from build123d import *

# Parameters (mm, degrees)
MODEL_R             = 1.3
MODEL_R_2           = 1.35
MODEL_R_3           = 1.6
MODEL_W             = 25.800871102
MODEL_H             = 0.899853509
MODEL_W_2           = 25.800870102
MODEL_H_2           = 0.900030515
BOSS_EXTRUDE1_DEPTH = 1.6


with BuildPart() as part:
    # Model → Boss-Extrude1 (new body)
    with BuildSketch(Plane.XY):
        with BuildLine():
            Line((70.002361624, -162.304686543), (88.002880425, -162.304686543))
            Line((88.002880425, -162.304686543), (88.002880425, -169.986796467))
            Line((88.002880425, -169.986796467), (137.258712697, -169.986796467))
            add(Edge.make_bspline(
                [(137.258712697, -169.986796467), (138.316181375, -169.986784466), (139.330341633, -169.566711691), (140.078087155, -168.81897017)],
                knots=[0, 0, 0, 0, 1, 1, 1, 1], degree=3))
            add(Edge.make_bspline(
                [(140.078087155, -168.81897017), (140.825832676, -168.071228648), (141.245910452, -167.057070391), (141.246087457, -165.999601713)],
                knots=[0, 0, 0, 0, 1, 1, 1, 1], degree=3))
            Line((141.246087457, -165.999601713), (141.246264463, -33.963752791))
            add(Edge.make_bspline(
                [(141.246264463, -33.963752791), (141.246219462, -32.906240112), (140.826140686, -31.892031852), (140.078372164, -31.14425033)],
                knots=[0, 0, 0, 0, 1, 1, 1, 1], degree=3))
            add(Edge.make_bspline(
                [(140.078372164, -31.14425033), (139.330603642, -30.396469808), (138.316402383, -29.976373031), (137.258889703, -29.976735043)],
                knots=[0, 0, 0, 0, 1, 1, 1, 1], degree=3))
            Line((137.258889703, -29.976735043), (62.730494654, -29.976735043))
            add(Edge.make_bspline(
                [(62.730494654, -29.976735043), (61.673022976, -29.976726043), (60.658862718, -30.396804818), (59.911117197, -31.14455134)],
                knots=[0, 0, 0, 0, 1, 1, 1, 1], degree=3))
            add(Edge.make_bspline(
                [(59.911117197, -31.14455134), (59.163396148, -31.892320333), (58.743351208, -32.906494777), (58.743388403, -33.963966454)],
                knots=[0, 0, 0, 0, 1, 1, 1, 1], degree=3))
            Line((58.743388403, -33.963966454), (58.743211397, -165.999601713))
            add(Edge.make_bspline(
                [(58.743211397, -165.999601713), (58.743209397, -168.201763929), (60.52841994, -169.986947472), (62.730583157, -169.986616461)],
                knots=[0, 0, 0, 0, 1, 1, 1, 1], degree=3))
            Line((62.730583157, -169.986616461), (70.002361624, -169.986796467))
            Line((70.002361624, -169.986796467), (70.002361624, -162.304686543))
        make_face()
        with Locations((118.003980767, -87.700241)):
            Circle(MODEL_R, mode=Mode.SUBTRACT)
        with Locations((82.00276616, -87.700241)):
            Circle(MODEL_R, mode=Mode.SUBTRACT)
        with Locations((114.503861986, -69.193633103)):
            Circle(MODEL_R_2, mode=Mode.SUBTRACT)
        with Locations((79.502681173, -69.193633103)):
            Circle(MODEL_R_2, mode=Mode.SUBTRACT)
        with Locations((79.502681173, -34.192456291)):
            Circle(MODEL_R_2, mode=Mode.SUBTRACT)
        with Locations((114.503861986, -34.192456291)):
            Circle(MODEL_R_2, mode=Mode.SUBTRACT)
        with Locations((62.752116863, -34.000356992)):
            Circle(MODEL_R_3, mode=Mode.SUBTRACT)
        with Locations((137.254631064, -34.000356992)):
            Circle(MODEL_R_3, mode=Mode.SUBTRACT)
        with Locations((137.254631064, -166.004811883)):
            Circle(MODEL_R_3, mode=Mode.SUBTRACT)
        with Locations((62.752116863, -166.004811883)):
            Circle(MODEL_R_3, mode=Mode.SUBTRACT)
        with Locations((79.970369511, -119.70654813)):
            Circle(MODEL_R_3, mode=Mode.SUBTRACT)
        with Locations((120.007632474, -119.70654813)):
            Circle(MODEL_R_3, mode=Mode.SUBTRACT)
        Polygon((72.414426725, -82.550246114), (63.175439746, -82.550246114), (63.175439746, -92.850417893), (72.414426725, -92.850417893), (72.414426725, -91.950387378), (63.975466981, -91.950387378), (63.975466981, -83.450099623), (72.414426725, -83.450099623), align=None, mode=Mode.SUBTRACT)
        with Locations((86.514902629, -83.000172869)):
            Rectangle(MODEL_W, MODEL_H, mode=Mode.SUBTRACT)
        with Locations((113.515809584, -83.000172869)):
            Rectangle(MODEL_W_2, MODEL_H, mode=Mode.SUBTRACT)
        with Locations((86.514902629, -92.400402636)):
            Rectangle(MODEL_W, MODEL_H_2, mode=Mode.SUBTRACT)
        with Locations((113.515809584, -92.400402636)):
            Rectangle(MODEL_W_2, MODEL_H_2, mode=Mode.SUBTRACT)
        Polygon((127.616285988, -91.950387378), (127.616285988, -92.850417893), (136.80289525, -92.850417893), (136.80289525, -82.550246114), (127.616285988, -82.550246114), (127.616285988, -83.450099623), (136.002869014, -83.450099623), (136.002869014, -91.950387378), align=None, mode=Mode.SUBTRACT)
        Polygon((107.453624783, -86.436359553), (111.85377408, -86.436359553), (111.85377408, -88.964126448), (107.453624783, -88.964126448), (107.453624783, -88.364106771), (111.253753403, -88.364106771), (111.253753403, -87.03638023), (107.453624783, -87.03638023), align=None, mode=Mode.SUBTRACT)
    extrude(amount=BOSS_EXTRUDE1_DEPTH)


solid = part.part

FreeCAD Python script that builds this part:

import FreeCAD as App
import Part
import Sketcher

doc = App.newDocument("Part")
body = doc.addObject("PartDesign::Body", "Body")

sketch1 = body.newObject("Sketcher::SketchObject", "Sketch")
sketch1.AttachmentSupport = (doc.getObject("XY_Plane"), [""])
sketch1.MapMode = "FlatFace"
sketch1.addGeometry([
    Part.LineSegment(App.Vector(70.002362, -162.304687, 0), App.Vector(88.00288, -162.304687, 0)),
    Part.LineSegment(App.Vector(88.00288, -162.304687, 0), App.Vector(88.00288, -169.986796, 0)),
    Part.LineSegment(App.Vector(88.00288, -169.986796, 0), App.Vector(137.258713, -169.986796, 0)),
    Part.BSplineCurve([App.Vector(137.258713, -169.986796, 0), App.Vector(138.316181, -169.986784, 0), App.Vector(139.330342, -169.566712, 0), App.Vector(140.078087, -168.81897, 0)], [4, 4], [0, 1], False, 3, [1, 1, 1, 1], False),
    Part.BSplineCurve([App.Vector(140.078087, -168.81897, 0), App.Vector(140.825833, -168.071229, 0), App.Vector(141.24591, -167.05707, 0), App.Vector(141.246087, -165.999602, 0)], [4, 4], [0, 1], False, 3, [1, 1, 1, 1], False),
    Part.LineSegment(App.Vector(141.246087, -165.999602, 0), App.Vector(141.246264, -33.963753, 0)),
    Part.BSplineCurve([App.Vector(141.246264, -33.963753, 0), App.Vector(141.246219, -32.90624, 0), App.Vector(140.826141, -31.892032, 0), App.Vector(140.078372, -31.14425, 0)], [4, 4], [0, 1], False, 3, [1, 1, 1, 1], False),
    Part.BSplineCurve([App.Vector(140.078372, -31.14425, 0), App.Vector(139.330604, -30.39647, 0), App.Vector(138.316402, -29.976373, 0), App.Vector(137.25889, -29.976735, 0)], [4, 4], [0, 1], False, 3, [1, 1, 1, 1], False),
    Part.LineSegment(App.Vector(137.25889, -29.976735, 0), App.Vector(62.730495, -29.976735, 0)),
    Part.BSplineCurve([App.Vector(62.730495, -29.976735, 0), App.Vector(61.673023, -29.976726, 0), App.Vector(60.658863, -30.396805, 0), App.Vector(59.911117, -31.144551, 0)], [4, 4], [0, 1], False, 3, [1, 1, 1, 1], False),
    Part.BSplineCurve([App.Vector(59.911117, -31.144551, 0), App.Vector(59.163396, -31.89232, 0), App.Vector(58.743351, -32.906495, 0), App.Vector(58.743388, -33.963966, 0)], [4, 4], [0, 1], False, 3, [1, 1, 1, 1], False),
    Part.LineSegment(App.Vector(58.743388, -33.963966, 0), App.Vector(58.743211, -165.999602, 0)),
    Part.BSplineCurve([App.Vector(58.743211, -165.999602, 0), App.Vector(58.743209, -168.201764, 0), App.Vector(60.52842, -169.986947, 0), App.Vector(62.730583, -169.986616, 0)], [4, 4], [0, 1], False, 3, [1, 1, 1, 1], False),
    Part.LineSegment(App.Vector(62.730583, -169.986616, 0), App.Vector(70.002362, -169.986796, 0)),
    Part.LineSegment(App.Vector(70.002362, -169.986796, 0), App.Vector(70.002362, -162.304687, 0)),
    Part.Circle(App.Vector(62.752117, -166.004812, 0), App.Vector(0, 0, 1), 1.6),
    Part.Circle(App.Vector(79.97037, -119.706548, 0), App.Vector(0, 0, 1), 1.6),
    Part.Circle(App.Vector(137.254631, -166.004812, 0), App.Vector(0, 0, 1), 1.6),
    Part.Circle(App.Vector(120.007632, -119.706548, 0), App.Vector(0, 0, 1), 1.6),
    Part.LineSegment(App.Vector(63.17544, -82.550246, 0), App.Vector(72.414427, -82.550246, 0)),
    Part.LineSegment(App.Vector(72.414427, -82.550246, 0), App.Vector(72.414427, -83.4501, 0)),
    Part.LineSegment(App.Vector(72.414427, -83.4501, 0), App.Vector(63.975467, -83.4501, 0)),
    Part.LineSegment(App.Vector(63.975467, -83.4501, 0), App.Vector(63.975467, -91.950387, 0)),
    Part.LineSegment(App.Vector(63.975467, -91.950387, 0), App.Vector(72.414427, -91.950387, 0)),
    Part.LineSegment(App.Vector(72.414427, -91.950387, 0), App.Vector(72.414427, -92.850418, 0)),
    Part.LineSegment(App.Vector(72.414427, -92.850418, 0), App.Vector(63.17544, -92.850418, 0)),
    Part.LineSegment(App.Vector(63.17544, -92.850418, 0), App.Vector(63.17544, -82.550246, 0)),
    Part.Circle(App.Vector(79.502681, -69.193633, 0), App.Vector(0, 0, 1), 1.35),
    Part.LineSegment(App.Vector(99.415338, -92.850418, 0), App.Vector(73.614467, -92.850418, 0)),
    Part.LineSegment(App.Vector(73.614467, -92.850418, 0), App.Vector(73.614467, -91.950387, 0)),
    Part.LineSegment(App.Vector(73.614467, -91.950387, 0), App.Vector(99.415338, -91.950387, 0)),
    Part.LineSegment(App.Vector(99.415338, -91.950387, 0), App.Vector(99.415338, -92.850418, 0)),
    Part.Circle(App.Vector(82.002766, -87.700241, 0), App.Vector(0, 0, 1), 1.3),
    Part.LineSegment(App.Vector(99.415338, -83.4501, 0), App.Vector(73.614467, -83.4501, 0)),
    Part.LineSegment(App.Vector(73.614467, -83.4501, 0), App.Vector(73.614467, -82.550246, 0)),
    Part.LineSegment(App.Vector(73.614467, -82.550246, 0), App.Vector(99.415338, -82.550246, 0)),
    Part.LineSegment(App.Vector(99.415338, -82.550246, 0), App.Vector(99.415338, -83.4501, 0)),
    Part.Circle(App.Vector(62.752117, -34.000357, 0), App.Vector(0, 0, 1), 1.6),
    Part.Circle(App.Vector(79.502681, -34.192456, 0), App.Vector(0, 0, 1), 1.35),
    Part.LineSegment(App.Vector(107.453625, -87.03638, 0), App.Vector(107.453625, -86.43636, 0)),
    Part.LineSegment(App.Vector(107.453625, -86.43636, 0), App.Vector(111.853774, -86.43636, 0)),
    Part.LineSegment(App.Vector(111.853774, -86.43636, 0), App.Vector(111.853774, -88.964126, 0)),
    Part.LineSegment(App.Vector(111.853774, -88.964126, 0), App.Vector(107.453625, -88.964126, 0)),
    Part.LineSegment(App.Vector(107.453625, -88.964126, 0), App.Vector(107.453625, -88.364107, 0)),
    Part.LineSegment(App.Vector(107.453625, -88.364107, 0), App.Vector(111.253753, -88.364107, 0)),
    Part.LineSegment(App.Vector(111.253753, -88.364107, 0), App.Vector(111.253753, -87.03638, 0)),
    Part.LineSegment(App.Vector(111.253753, -87.03638, 0), App.Vector(107.453625, -87.03638, 0)),
    Part.LineSegment(App.Vector(126.416245, -92.850418, 0), App.Vector(100.615375, -92.850418, 0)),
    Part.LineSegment(App.Vector(100.615375, -92.850418, 0), App.Vector(100.615375, -91.950387, 0)),
    Part.LineSegment(App.Vector(100.615375, -91.950387, 0), App.Vector(126.416245, -91.950387, 0)),
    Part.LineSegment(App.Vector(126.416245, -91.950387, 0), App.Vector(126.416245, -92.850418, 0)),
    Part.Circle(App.Vector(118.003981, -87.700241, 0), App.Vector(0, 0, 1), 1.3),
    Part.LineSegment(App.Vector(126.416245, -83.4501, 0), App.Vector(100.615375, -83.4501, 0)),
    Part.LineSegment(App.Vector(100.615375, -83.4501, 0), App.Vector(100.615375, -82.550246, 0)),
    Part.LineSegment(App.Vector(100.615375, -82.550246, 0), App.Vector(126.416245, -82.550246, 0)),
    Part.LineSegment(App.Vector(126.416245, -82.550246, 0), App.Vector(126.416245, -83.4501, 0)),
    Part.Circle(App.Vector(114.503862, -69.193633, 0), App.Vector(0, 0, 1), 1.35),
    Part.LineSegment(App.Vector(127.616286, -92.850418, 0), App.Vector(127.616286, -91.950387, 0)),
    Part.LineSegment(App.Vector(127.616286, -91.950387, 0), App.Vector(136.002869, -91.950387, 0)),
    Part.LineSegment(App.Vector(136.002869, -91.950387, 0), App.Vector(136.002869, -83.4501, 0)),
    Part.LineSegment(App.Vector(136.002869, -83.4501, 0), App.Vector(127.616286, -83.4501, 0)),
    Part.LineSegment(App.Vector(127.616286, -83.4501, 0), App.Vector(127.616286, -82.550246, 0)),
    Part.LineSegment(App.Vector(127.616286, -82.550246, 0), App.Vector(136.802895, -82.550246, 0)),
    Part.LineSegment(App.Vector(136.802895, -82.550246, 0), App.Vector(136.802895, -92.850418, 0)),
    Part.LineSegment(App.Vector(136.802895, -92.850418, 0), App.Vector(127.616286, -92.850418, 0)),
    Part.Circle(App.Vector(114.503862, -34.192456, 0), App.Vector(0, 0, 1), 1.35),
    Part.Circle(App.Vector(137.254631, -34.000357, 0), App.Vector(0, 0, 1), 1.6),
], False)
sketch1.addConstraint([
    Sketcher.Constraint("Block", 3),
    Sketcher.Constraint("Block", 4),
    Sketcher.Constraint("Block", 6),
    Sketcher.Constraint("Block", 7),
    Sketcher.Constraint("Block", 9),
    Sketcher.Constraint("Block", 10),
    Sketcher.Constraint("Block", 12),
    Sketcher.Constraint("Coincident", 0, 2, 1, 1),
    Sketcher.Constraint("Coincident", 1, 2, 2, 1),
    Sketcher.Constraint("Coincident", 2, 2, 3, 1),
    Sketcher.Constraint("Coincident", 4, 2, 5, 1),
    Sketcher.Constraint("Coincident", 5, 2, 6, 1),
    Sketcher.Constraint("Coincident", 7, 2, 8, 1),
    Sketcher.Constraint("Coincident", 8, 2, 9, 1),
    Sketcher.Constraint("Coincident", 10, 2, 11, 1),
    Sketcher.Constraint("Coincident", 11, 2, 12, 1),
    Sketcher.Constraint("Coincident", 12, 2, 13, 1),
    Sketcher.Constraint("Coincident", 13, 2, 14, 1),
    Sketcher.Constraint("Coincident", 14, 2, 0, 1),
    Sketcher.Constraint("Coincident", 19, 2, 20, 1),
    Sketcher.Constraint("Coincident", 20, 2, 21, 1),
    Sketcher.Constraint("Coincident", 21, 2, 22, 1),
    Sketcher.Constraint("Coincident", 22, 2, 23, 1),
    Sketcher.Constraint("Coincident", 23, 2, 24, 1),
    Sketcher.Constraint("Coincident", 24, 2, 25, 1),
    Sketcher.Constraint("Coincident", 25, 2, 26, 1),
    Sketcher.Constraint("Coincident", 26, 2, 19, 1),
    Sketcher.Constraint("Coincident", 28, 2, 29, 1),
    Sketcher.Constraint("Coincident", 29, 2, 30, 1),
    Sketcher.Constraint("Coincident", 30, 2, 31, 1),
    Sketcher.Constraint("Coincident", 31, 2, 28, 1),
    Sketcher.Constraint("Coincident", 33, 2, 34, 1),
    Sketcher.Constraint("Coincident", 34, 2, 35, 1),
    Sketcher.Constraint("Coincident", 35, 2, 36, 1),
    Sketcher.Constraint("Coincident", 36, 2, 33, 1),
    Sketcher.Constraint("Coincident", 39, 2, 40, 1),
    Sketcher.Constraint("Coincident", 40, 2, 41, 1),
    Sketcher.Constraint("Coincident", 41, 2, 42, 1),
    Sketcher.Constraint("Coincident", 42, 2, 43, 1),
    Sketcher.Constraint("Coincident", 43, 2, 44, 1),
    Sketcher.Constraint("Coincident", 44, 2, 45, 1),
    Sketcher.Constraint("Coincident", 45, 2, 46, 1),
    Sketcher.Constraint("Coincident", 46, 2, 39, 1),
    Sketcher.Constraint("Coincident", 47, 2, 48, 1),
    Sketcher.Constraint("Coincident", 48, 2, 49, 1),
    Sketcher.Constraint("Coincident", 49, 2, 50, 1),
    Sketcher.Constraint("Coincident", 50, 2, 47, 1),
    Sketcher.Constraint("Coincident", 52, 2, 53, 1),
    Sketcher.Constraint("Coincident", 53, 2, 54, 1),
    Sketcher.Constraint("Coincident", 54, 2, 55, 1),
    Sketcher.Constraint("Coincident", 55, 2, 52, 1),
    Sketcher.Constraint("Coincident", 57, 2, 58, 1),
    Sketcher.Constraint("Coincident", 58, 2, 59, 1),
    Sketcher.Constraint("Coincident", 59, 2, 60, 1),
    Sketcher.Constraint("Coincident", 60, 2, 61, 1),
    Sketcher.Constraint("Coincident", 61, 2, 62, 1),
    Sketcher.Constraint("Coincident", 62, 2, 63, 1),
    Sketcher.Constraint("Coincident", 63, 2, 64, 1),
    Sketcher.Constraint("Coincident", 64, 2, 57, 1),
    Sketcher.Constraint("Horizontal", 0),
    Sketcher.Constraint("Vertical", 1),
    Sketcher.Constraint("Horizontal", 2),
    Sketcher.Constraint("Vertical", 14),
    Sketcher.Constraint("Horizontal", 19),
    Sketcher.Constraint("Vertical", 20),
    Sketcher.Constraint("Horizontal", 21),
    Sketcher.Constraint("Vertical", 22),
    Sketcher.Constraint("Horizontal", 23),
    Sketcher.Constraint("Vertical", 24),
    Sketcher.Constraint("Horizontal", 25),
    Sketcher.Constraint("Vertical", 26),
    Sketcher.Constraint("Horizontal", 28),
    Sketcher.Constraint("Vertical", 29),
    Sketcher.Constraint("Horizontal", 30),
    Sketcher.Constraint("Vertical", 31),
    Sketcher.Constraint("Horizontal", 33),
    Sketcher.Constraint("Vertical", 34),
    Sketcher.Constraint("Horizontal", 35),
    Sketcher.Constraint("Vertical", 36),
    Sketcher.Constraint("Vertical", 39),
    Sketcher.Constraint("Horizontal", 40),
    Sketcher.Constraint("Vertical", 41),
    Sketcher.Constraint("Horizontal", 42),
    Sketcher.Constraint("Vertical", 43),
    Sketcher.Constraint("Horizontal", 44),
    Sketcher.Constraint("Vertical", 45),
    Sketcher.Constraint("Horizontal", 46),
    Sketcher.Constraint("Horizontal", 47),
    Sketcher.Constraint("Vertical", 48),
    Sketcher.Constraint("Horizontal", 49),
    Sketcher.Constraint("Vertical", 50),
    Sketcher.Constraint("Horizontal", 52),
    Sketcher.Constraint("Vertical", 53),
    Sketcher.Constraint("Horizontal", 54),
    Sketcher.Constraint("Vertical", 55),
    Sketcher.Constraint("Vertical", 57),
    Sketcher.Constraint("Horizontal", 58),
    Sketcher.Constraint("Vertical", 59),
    Sketcher.Constraint("Horizontal", 60),
    Sketcher.Constraint("Vertical", 61),
    Sketcher.Constraint("Horizontal", 62),
    Sketcher.Constraint("Vertical", 63),
    Sketcher.Constraint("Horizontal", 64),
    Sketcher.Constraint("Equal", 15, 16),
    Sketcher.Constraint("Equal", 16, 17),
    Sketcher.Constraint("Equal", 17, 18),
    Sketcher.Constraint("Equal", 18, 37),
    Sketcher.Constraint("Equal", 27, 38),
    Sketcher.Constraint("Equal", 32, 51),
    Sketcher.Constraint("Equal", 38, 56),
    Sketcher.Constraint("Equal", 56, 65),
    Sketcher.Constraint("Equal", 37, 66),
    Sketcher.Constraint("Horizontal", 15, 3, 17, 3),
    Sketcher.Constraint("Horizontal", 16, 3, 18, 3),
    Sketcher.Constraint("Horizontal", 32, 3, 51, 3),
    Sketcher.Constraint("Horizontal", 27, 3, 56, 3),
    Sketcher.Constraint("Horizontal", 38, 3, 65, 3),
    Sketcher.Constraint("Horizontal", 37, 3, 66, 3),
    Sketcher.Constraint("Horizontal", 2, 2, 13, 2),
    Sketcher.Constraint("Horizontal", 25, 2, 28, 2),
    Sketcher.Constraint("Horizontal", 23, 2, 29, 2),
    Sketcher.Constraint("Horizontal", 21, 2, 33, 2),
    Sketcher.Constraint("Horizontal", 26, 2, 34, 2),
    Sketcher.Constraint("Horizontal", 31, 2, 47, 2),
    Sketcher.Constraint("Horizontal", 30, 2, 48, 2),
    Sketcher.Constraint("Horizontal", 36, 2, 52, 2),
    Sketcher.Constraint("Horizontal", 35, 2, 53, 2),
    Sketcher.Constraint("Horizontal", 49, 2, 57, 2),
    Sketcher.Constraint("Horizontal", 55, 2, 59, 2),
    Sketcher.Constraint("Horizontal", 54, 2, 61, 2),
    Sketcher.Constraint("Horizontal", 50, 2, 63, 2),
    Sketcher.Constraint("Vertical", 15, 3, 37, 3),
    Sketcher.Constraint("Vertical", 27, 3, 38, 3),
    Sketcher.Constraint("Vertical", 56, 3, 65, 3),
    Sketcher.Constraint("Vertical", 17, 3, 66, 3),
    Sketcher.Constraint("Vertical", 20, 2, 23, 2),
    Sketcher.Constraint("Vertical", 29, 2, 33, 2),
    Sketcher.Constraint("Vertical", 31, 2, 35, 2),
    Sketcher.Constraint("Vertical", 39, 2, 42, 2),
    Sketcher.Constraint("Vertical", 48, 2, 52, 2),
    Sketcher.Constraint("Vertical", 50, 2, 54, 2),
    Sketcher.Constraint("Vertical", 57, 2, 60, 2),
    Sketcher.Constraint("Equal", 35, 47),
    Sketcher.Constraint("Equal", 39, 43),
    Sketcher.Constraint("Diameter", 15, 3.2),
    Sketcher.Constraint("Diameter", 27, 2.7),
    Sketcher.Constraint("Diameter", 32, 2.6),
    Sketcher.Constraint("DistanceX", 18, 3, 17, 3, 17.246999),
    Sketcher.Constraint("DistanceX", 22, 2, 28, 2, 9.639),
    Sketcher.Constraint("DistanceX", 0, 1, 0, 2, 18.000519),
    Sketcher.Constraint("DistanceX", 21, 2, 21, 1, 8.43896),
    Sketcher.Constraint("DistanceX", 28, 2, 28, 1, 25.800871),
    Sketcher.Constraint("DistanceX", 40, 1, 40, 2, 4.400149),
    Sketcher.Constraint("DistanceX", 44, 1, 44, 2, 3.800129),
    Sketcher.Constraint("DistanceX", 62, 1, 62, 2, 9.186609),
    Sketcher.Constraint("DistanceY", 1, 2, 1, 1, 7.68211),
    Sketcher.Constraint("DistanceY", 24, 2, 24, 1, 0.900031),
    Sketcher.Constraint("DistanceY", 26, 1, 26, 2, 10.300172),
    Sketcher.Constraint("DistanceY", 39, 1, 39, 2, 0.600021),
    Sketcher.Constraint("DistanceY", 20, 2, -1, 1, 83.4501),
    Sketcher.Constraint("DistanceY", 38, 3, 37, 3, 0.192099),
    Sketcher.Constraint("DistanceX", 27, 3, 51, 3, 38.5013),
    Sketcher.Constraint("DistanceY", 27, 3, 8, 2, 39.216898),
    Sketcher.Constraint("DistanceX", 21, 2, 32, 3, 18.027299),
    Sketcher.Constraint("Distance", 13, 7.271778),
    Sketcher.Constraint("DistanceX", 19, 1, 19, 2, 9.238987),
    Sketcher.Constraint("DistanceX", 58, 1, 58, 2, 8.386583),
    Sketcher.Constraint("DistanceY", 20, 2, 20, 1, 0.899854),
    Sketcher.Constraint("DistanceY", 41, 2, 41, 1, 2.527767),
    Sketcher.Constraint("DistanceY", 15, 3, -1, 1, 166.004812),
    Sketcher.Constraint("DistanceX", -1, 1, 16, 3, 79.97037),
    Sketcher.Constraint("DistanceY", 16, 3, -1, 1, 119.706548),
    Sketcher.Constraint("DistanceX", -1, 1, 17, 3, 137.254631),
    Sketcher.Constraint("DistanceX", -1, 1, 27, 3, 79.502681),
    Sketcher.Constraint("DistanceY", 32, 3, -1, 1, 87.700241),
    Sketcher.Constraint("DistanceX", -1, 1, 56, 3, 114.503862),
    Sketcher.Constraint("DistanceX", -1, 1, 25, 2, 63.17544),
    Sketcher.Constraint("DistanceY", 39, 2, -1, 1, 86.43636),
    Sketcher.Constraint("DistanceX", -1, 1, 58, 2, 136.002869),
    Sketcher.Constraint("DistanceX", 15, 3, 32, 3, 19.250649),
    Sketcher.Constraint("DistanceY", 16, 3, 37, 3, 85.706191),
    Sketcher.Constraint("DistanceX", 47, 2, 42, 2, 6.83825),
    Sketcher.Constraint("DistanceX", 49, 2, 57, 2, 1.200041),
])
pad1 = body.newObject("PartDesign::Pad", "Pad")
pad1.Profile = sketch1
pad1.Length = 1.6

doc.recompute()
